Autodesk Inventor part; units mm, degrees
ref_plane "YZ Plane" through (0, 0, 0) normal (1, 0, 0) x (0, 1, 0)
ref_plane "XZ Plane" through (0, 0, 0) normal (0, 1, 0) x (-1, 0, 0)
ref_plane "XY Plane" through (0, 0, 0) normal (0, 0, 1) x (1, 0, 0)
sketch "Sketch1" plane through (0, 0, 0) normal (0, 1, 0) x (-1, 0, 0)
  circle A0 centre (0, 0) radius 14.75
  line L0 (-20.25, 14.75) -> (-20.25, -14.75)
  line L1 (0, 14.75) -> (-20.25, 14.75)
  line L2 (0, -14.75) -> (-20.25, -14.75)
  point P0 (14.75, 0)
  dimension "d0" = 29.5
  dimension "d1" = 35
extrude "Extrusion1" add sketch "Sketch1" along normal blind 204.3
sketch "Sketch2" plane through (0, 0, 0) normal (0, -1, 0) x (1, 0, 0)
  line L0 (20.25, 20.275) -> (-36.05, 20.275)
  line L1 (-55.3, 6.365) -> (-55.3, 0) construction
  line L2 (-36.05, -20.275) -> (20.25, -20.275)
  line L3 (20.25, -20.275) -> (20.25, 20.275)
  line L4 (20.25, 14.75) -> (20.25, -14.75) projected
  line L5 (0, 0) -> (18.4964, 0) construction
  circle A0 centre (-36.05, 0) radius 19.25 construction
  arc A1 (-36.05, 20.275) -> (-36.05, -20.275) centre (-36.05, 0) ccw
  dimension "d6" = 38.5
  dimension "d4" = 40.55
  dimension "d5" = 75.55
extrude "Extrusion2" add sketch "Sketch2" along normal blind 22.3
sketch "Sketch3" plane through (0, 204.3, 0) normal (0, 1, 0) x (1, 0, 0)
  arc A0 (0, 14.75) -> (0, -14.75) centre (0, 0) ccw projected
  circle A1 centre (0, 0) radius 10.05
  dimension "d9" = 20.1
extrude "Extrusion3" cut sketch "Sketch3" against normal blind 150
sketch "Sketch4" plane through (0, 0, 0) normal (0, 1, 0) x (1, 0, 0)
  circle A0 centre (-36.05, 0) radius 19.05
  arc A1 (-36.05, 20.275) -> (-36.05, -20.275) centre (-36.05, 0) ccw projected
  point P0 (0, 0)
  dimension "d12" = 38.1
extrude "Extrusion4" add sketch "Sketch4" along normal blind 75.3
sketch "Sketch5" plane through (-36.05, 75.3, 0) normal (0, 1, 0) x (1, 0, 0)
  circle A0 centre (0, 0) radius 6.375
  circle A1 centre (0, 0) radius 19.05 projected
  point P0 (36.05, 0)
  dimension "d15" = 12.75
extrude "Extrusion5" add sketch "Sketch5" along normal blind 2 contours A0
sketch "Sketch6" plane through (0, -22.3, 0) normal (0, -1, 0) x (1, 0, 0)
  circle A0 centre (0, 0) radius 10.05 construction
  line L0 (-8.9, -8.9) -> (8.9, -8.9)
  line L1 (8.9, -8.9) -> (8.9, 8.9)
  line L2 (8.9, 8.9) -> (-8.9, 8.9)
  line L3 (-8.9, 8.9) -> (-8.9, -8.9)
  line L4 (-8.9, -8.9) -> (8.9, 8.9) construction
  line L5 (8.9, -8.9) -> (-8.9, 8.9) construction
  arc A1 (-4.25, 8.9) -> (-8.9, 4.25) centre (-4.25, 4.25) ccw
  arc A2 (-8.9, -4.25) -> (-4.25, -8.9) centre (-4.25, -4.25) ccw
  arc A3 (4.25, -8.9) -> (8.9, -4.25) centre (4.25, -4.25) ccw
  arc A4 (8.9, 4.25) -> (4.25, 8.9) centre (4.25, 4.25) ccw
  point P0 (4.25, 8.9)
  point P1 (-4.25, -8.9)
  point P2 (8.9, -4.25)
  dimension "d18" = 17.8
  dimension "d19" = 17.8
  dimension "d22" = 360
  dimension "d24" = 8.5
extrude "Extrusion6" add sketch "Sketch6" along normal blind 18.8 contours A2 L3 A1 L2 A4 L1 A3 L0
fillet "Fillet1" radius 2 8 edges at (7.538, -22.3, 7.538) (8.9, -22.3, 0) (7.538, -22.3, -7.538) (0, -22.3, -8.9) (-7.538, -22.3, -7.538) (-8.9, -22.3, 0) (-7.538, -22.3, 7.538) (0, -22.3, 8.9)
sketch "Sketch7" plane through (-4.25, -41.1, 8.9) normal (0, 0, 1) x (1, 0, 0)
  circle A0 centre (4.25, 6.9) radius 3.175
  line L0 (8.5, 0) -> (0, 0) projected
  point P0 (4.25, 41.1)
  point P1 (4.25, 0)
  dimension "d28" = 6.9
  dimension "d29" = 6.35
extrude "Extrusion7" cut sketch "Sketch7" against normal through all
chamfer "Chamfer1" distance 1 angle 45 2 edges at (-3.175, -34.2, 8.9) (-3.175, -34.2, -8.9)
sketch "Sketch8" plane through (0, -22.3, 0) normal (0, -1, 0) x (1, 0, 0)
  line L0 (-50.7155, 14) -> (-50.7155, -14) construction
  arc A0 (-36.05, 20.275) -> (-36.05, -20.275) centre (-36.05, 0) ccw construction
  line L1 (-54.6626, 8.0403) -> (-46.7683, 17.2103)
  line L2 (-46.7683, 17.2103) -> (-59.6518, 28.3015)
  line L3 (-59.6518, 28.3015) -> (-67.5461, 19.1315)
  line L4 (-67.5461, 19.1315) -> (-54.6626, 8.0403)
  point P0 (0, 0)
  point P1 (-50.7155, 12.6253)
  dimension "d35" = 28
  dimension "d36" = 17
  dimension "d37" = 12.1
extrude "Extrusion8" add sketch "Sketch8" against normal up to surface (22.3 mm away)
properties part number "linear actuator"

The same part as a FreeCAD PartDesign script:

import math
import FreeCAD as App
import Part
import Sketcher


def edges_at(feature, points):
    """Names of the edges that pass closest to the given points."""
    edges = feature.Shape.Edges
    near = lambda p: min(range(len(edges)), key=lambda i: edges[i].distToShape(Part.Vertex(*p))[0])
    return sorted({f"Edge{near(p) + 1}" for p in points})


def add_polygon(sketch, points):
    """Adds a closed chain of lines whose ends are joined by coincident constraints."""
    first, n = sketch.GeometryCount, len(points)
    for a, b in zip(points, points[1:] + points[:1]):
        sketch.addGeometry(Part.LineSegment(App.Vector(*a, 0), App.Vector(*b, 0)), False)
    for i in range(n):
        sketch.addConstraint(Sketcher.Constraint("Coincident", first + i, 2, first + (i + 1) % n, 1))

doc = App.newDocument("Part")
body = doc.addObject("PartDesign::Body", "Body")

# Sketch on XZ plane
sketch1 = body.newObject("Sketcher::SketchObject", "Sketch")
sketch1.AttachmentSupport = (doc.getObject("XZ_Plane"), [""])
sketch1.MapMode = "FlatFace"
sketch1.addGeometry(Part.ArcOfCircle(Part.Circle(App.Vector(0, 0, 0), App.Vector(0, 0, 1), 15), math.radians(90), math.radians(270)), False)
sketch1.addGeometry(Part.LineSegment(App.Vector(0, 15, 0), App.Vector(20, 15, 0)), False)
sketch1.addGeometry(Part.LineSegment(App.Vector(20, 15, 0), App.Vector(20, -15, 0)), False)
sketch1.addGeometry(Part.LineSegment(App.Vector(20, -15, 0), App.Vector(0, -15, 0)), False)
sketch1.addConstraint(Sketcher.Constraint("Tangent", 0, 1, 1, 1))
sketch1.addConstraint(Sketcher.Constraint("Coincident", 1, 2, 2, 1))
sketch1.addConstraint(Sketcher.Constraint("Coincident", 2, 2, 3, 1))
sketch1.addConstraint(Sketcher.Constraint("Tangent", 3, 2, 0, 2))
sketch1.addConstraint(Sketcher.Constraint("Horizontal", 1))
sketch1.addConstraint(Sketcher.Constraint("Vertical", 2))
sketch1.addConstraint(Sketcher.Constraint("Horizontal", 3))
sketch1.addConstraint(Sketcher.Constraint("Coincident", 0, 3, -1, 1))
sketch1.addConstraint(Sketcher.Constraint("Radius", 0, 14.75))
sketch1.addConstraint(Sketcher.Constraint("DistanceX", 1, 1, 1, 2, 20.25))
pad1 = body.newObject("PartDesign::Pad", "Pad")
pad1.Profile = sketch1
pad1.Length = 204.3
pad1.Reversed = True

# Sketch on XZ plane
sketch2 = body.newObject("Sketcher::SketchObject", "Sketch001")
sketch2.AttachmentSupport = (doc.getObject("XZ_Plane"), [""])
sketch2.MapMode = "FlatFace"
sketch2.addGeometry(Part.LineSegment(App.Vector(20, -20, 0), App.Vector(20, 20, 0)), False)
sketch2.addGeometry(Part.LineSegment(App.Vector(20, 20, 0), App.Vector(-36, 20, 0)), False)
sketch2.addGeometry(Part.ArcOfCircle(Part.Circle(App.Vector(-36, 0, 0), App.Vector(0, 0, 1), 20), math.radians(90), math.radians(270)), False)
sketch2.addGeometry(Part.LineSegment(App.Vector(-36, -20, 0), App.Vector(20, -20, 0)), False)
sketch2.addConstraint(Sketcher.Constraint("Coincident", 0, 2, 1, 1))
sketch2.addConstraint(Sketcher.Constraint("Tangent", 1, 2, 2, 1))
sketch2.addConstraint(Sketcher.Constraint("Tangent", 2, 2, 3, 1))
sketch2.addConstraint(Sketcher.Constraint("Coincident", 3, 2, 0, 1))
sketch2.addConstraint(Sketcher.Constraint("Vertical", 0))
sketch2.addConstraint(Sketcher.Constraint("Horizontal", 1))
sketch2.addConstraint(Sketcher.Constraint("Horizontal", 3))
sketch2.addConstraint(Sketcher.Constraint("PointOnObject", 2, 3, -1))
sketch2.addConstraint(Sketcher.Constraint("Radius", 2, 20.275))
sketch2.addConstraint(Sketcher.Constraint("DistanceX", 1, 2, 1, 1, 56.3))
sketch2.addConstraint(Sketcher.Constraint("DistanceX", 2, 3, -1, 1, 36.05))
pad2 = body.newObject("PartDesign::Pad", "Pad001")
pad2.Profile = sketch2
pad2.Length = 22.3

# Sketch on XZ plane
sketch3 = body.newObject("Sketcher::SketchObject", "Sketch002")
sketch3.AttachmentSupport = (doc.getObject("XZ_Plane"), [""])
sketch3.MapMode = "FlatFace"
sketch3.AttachmentOffset = App.Placement(App.Vector(0, 0, -204.3), App.Rotation())
sketch3.addGeometry(Part.Circle(App.Vector(0, 0, 0), App.Vector(0, 0, 1), 10), False)
sketch3.addConstraint(Sketcher.Constraint("Coincident", 0, 3, -1, 1))
sketch3.addConstraint(Sketcher.Constraint("Diameter", 0, 20.1))
pocket1 = body.newObject("PartDesign::Pocket", "Pocket")
pocket1.Profile = sketch3
pocket1.Length = 150
pocket1.Reversed = True

# Sketch on XZ plane
sketch4 = body.newObject("Sketcher::SketchObject", "Sketch003")
sketch4.AttachmentSupport = (doc.getObject("XZ_Plane"), [""])
sketch4.MapMode = "FlatFace"
sketch4.addGeometry(Part.Circle(App.Vector(-36, 0, 0), App.Vector(0, 0, 1), 19), False)
sketch4.addConstraint(Sketcher.Constraint("PointOnObject", 0, 3, -1))
sketch4.addConstraint(Sketcher.Constraint("Diameter", 0, 38.1))
sketch4.addConstraint(Sketcher.Constraint("DistanceX", 0, 3, -1, 1, 36.05))
pad3 = body.newObject("PartDesign::Pad", "Pad002")
pad3.Profile = sketch4
pad3.Length = 75.3
pad3.Reversed = True

# Sketch on XZ plane
sketch5 = body.newObject("Sketcher::SketchObject", "Sketch004")
sketch5.AttachmentSupport = (doc.getObject("XZ_Plane"), [""])
sketch5.MapMode = "FlatFace"
sketch5.AttachmentOffset = App.Placement(App.Vector(0, 0, -75.3), App.Rotation())
sketch5.addGeometry(Part.Circle(App.Vector(-36, 0, 0), App.Vector(0, 0, 1), 6), False)
sketch5.addConstraint(Sketcher.Constraint("PointOnObject", 0, 3, -1))
sketch5.addConstraint(Sketcher.Constraint("Diameter", 0, 12.75))
sketch5.addConstraint(Sketcher.Constraint("DistanceX", 0, 3, -1, 1, 36.05))
pad4 = body.newObject("PartDesign::Pad", "Pad003")
pad4.Profile = sketch5
pad4.Length = 2
pad4.Reversed = True

# Sketch on XZ plane
sketch6 = body.newObject("Sketcher::SketchObject", "Sketch005")
sketch6.AttachmentSupport = (doc.getObject("XZ_Plane"), [""])
sketch6.MapMode = "FlatFace"
sketch6.AttachmentOffset = App.Placement(App.Vector(0, 0, 22.3), App.Rotation())
sketch6.addGeometry(Part.ArcOfCircle(Part.Circle(App.Vector(-4.2, -4.2, 0), App.Vector(0, 0, 1), 4.7), math.radians(180), math.radians(270)), False)
sketch6.addGeometry(Part.LineSegment(App.Vector(-4.2, -8.9, 0), App.Vector(4.2, -8.9, 0)), False)
sketch6.addGeometry(Part.ArcOfCircle(Part.Circle(App.Vector(4.2, -4.2, 0), App.Vector(0, 0, 1), 4.7), math.radians(-90), math.radians(0)), False)
sketch6.addGeometry(Part.LineSegment(App.Vector(8.9, -4.2, 0), App.Vector(8.9, 4.2, 0)), False)
sketch6.addGeometry(Part.ArcOfCircle(Part.Circle(App.Vector(4.2, 4.2, 0), App.Vector(0, 0, 1), 4.7), math.radians(0), math.radians(90)), False)
sketch6.addGeometry(Part.LineSegment(App.Vector(4.2, 8.9, 0), App.Vector(-4.2, 8.9, 0)), False)
sketch6.addGeometry(Part.ArcOfCircle(Part.Circle(App.Vector(-4.2, 4.2, 0), App.Vector(0, 0, 1), 4.7), math.radians(90), math.radians(180)), False)
sketch6.addGeometry(Part.LineSegment(App.Vector(-8.9, 4.2, 0), App.Vector(-8.9, -4.2, 0)), False)
sketch6.addConstraint(Sketcher.Constraint("Tangent", 0, 2, 1, 1))
sketch6.addConstraint(Sketcher.Constraint("Tangent", 1, 2, 2, 1))
sketch6.addConstraint(Sketcher.Constraint("Tangent", 2, 2, 3, 1))
sketch6.addConstraint(Sketcher.Constraint("Tangent", 3, 2, 4, 1))
sketch6.addConstraint(Sketcher.Constraint("Tangent", 4, 2, 5, 1))
sketch6.addConstraint(Sketcher.Constraint("Tangent", 5, 2, 6, 1))
sketch6.addConstraint(Sketcher.Constraint("Tangent", 6, 2, 7, 1))
sketch6.addConstraint(Sketcher.Constraint("Tangent", 7, 2, 0, 1))
sketch6.addConstraint(Sketcher.Constraint("Horizontal", 1))
sketch6.addConstraint(Sketcher.Constraint("Vertical", 3))
sketch6.addConstraint(Sketcher.Constraint("Horizontal", 5))
sketch6.addConstraint(Sketcher.Constraint("Vertical", 7))
sketch6.addConstraint(Sketcher.Constraint("Equal", 0, 2))
sketch6.addConstraint(Sketcher.Constraint("Equal", 2, 4))
sketch6.addConstraint(Sketcher.Constraint("Equal", 4, 6))
sketch6.addConstraint(Sketcher.Constraint("Symmetric", 0, 3, 4, 3, -1, 1))
sketch6.addConstraint(Sketcher.Constraint("Equal", 5, 3))
sketch6.addConstraint(Sketcher.Constraint("DistanceX", 1, 1, 1, 2, 8.5))
sketch6.addConstraint(Sketcher.Constraint("Radius", 0, 4.65))
pad5 = body.newObject("PartDesign::Pad", "Pad004")
pad5.Profile = sketch6
pad5.Length = 18.8
doc.recompute()

fillet = body.newObject("PartDesign::Fillet", "Fillet")
fillet.Base = (pad5, edges_at(pad5, [
    (7.538, -22.3, 7.538),
    (8.9, -22.3, 0),
    (7.538, -22.3, -7.538),
    (0, -22.3, -8.9),
    (-7.538, -22.3, -7.538),
    (-8.9, -22.3, 0),
    (-7.538, -22.3, 7.538),
    (0, -22.3, 8.9),
]))
fillet.Radius = 2

# Sketch on XY plane
sketch7 = body.newObject("Sketcher::SketchObject", "Sketch006")
sketch7.AttachmentSupport = (doc.getObject("XY_Plane"), [""])
sketch7.MapMode = "FlatFace"
sketch7.AttachmentOffset = App.Placement(App.Vector(0, 0, 8.9), App.Rotation())
sketch7.addGeometry(Part.Circle(App.Vector(0, -34.2, 0), App.Vector(0, 0, 1), 3.2), False)
sketch7.addConstraint(Sketcher.Constraint("PointOnObject", 0, 3, -2))
sketch7.addConstraint(Sketcher.Constraint("Diameter", 0, 6.35))
sketch7.addConstraint(Sketcher.Constraint("DistanceY", 0, 3, -1, 1, 34.2))
pocket2 = body.newObject("PartDesign::Pocket", "Pocket001")
pocket2.Profile = sketch7
pocket2.Type = "ThroughAll"
doc.recompute()

chamfer = body.newObject("PartDesign::Chamfer", "Chamfer")
chamfer.Base = (pocket2, edges_at(pocket2, [(-3.175, -34.2, 8.9), (-3.175, -34.2, -8.9)]))
chamfer.Size = 1

# Sketch on XZ plane
sketch8 = body.newObject("Sketcher::SketchObject", "Sketch007")
sketch8.AttachmentSupport = (doc.getObject("XZ_Plane"), [""])
sketch8.MapMode = "FlatFace"
sketch8.AttachmentOffset = App.Placement(App.Vector(0, 0, 22.3), App.Rotation())
add_polygon(sketch8, [(-68, 19), (-55, 8), (-47, 17), (-60, 28)])  # lines 0-3
sketch8.addConstraint(Sketcher.Constraint("Perpendicular", 0, 1))
sketch8.addConstraint(Sketcher.Constraint("Perpendicular", 1, 2))
sketch8.addConstraint(Sketcher.Constraint("Perpendicular", 2, 3))
sketch8.addConstraint(Sketcher.Constraint("Distance", 0, 17.0))
sketch8.addConstraint(Sketcher.Constraint("Distance", 1, 12.1))
sketch8.addConstraint(Sketcher.Constraint("DistanceY", 0, 2, 1, 2, 9.17))
sketch8.addConstraint(Sketcher.Constraint("DistanceX", 3, 2, -1, 1, 67.546))
sketch8.addConstraint(Sketcher.Constraint("DistanceY", -1, 1, 0, 2, 8.0403))
pad6 = body.newObject("PartDesign::Pad", "Pad005")
pad6.Profile = sketch8
pad6.Length = 22.3
pad6.Reversed = True

doc.recompute()
